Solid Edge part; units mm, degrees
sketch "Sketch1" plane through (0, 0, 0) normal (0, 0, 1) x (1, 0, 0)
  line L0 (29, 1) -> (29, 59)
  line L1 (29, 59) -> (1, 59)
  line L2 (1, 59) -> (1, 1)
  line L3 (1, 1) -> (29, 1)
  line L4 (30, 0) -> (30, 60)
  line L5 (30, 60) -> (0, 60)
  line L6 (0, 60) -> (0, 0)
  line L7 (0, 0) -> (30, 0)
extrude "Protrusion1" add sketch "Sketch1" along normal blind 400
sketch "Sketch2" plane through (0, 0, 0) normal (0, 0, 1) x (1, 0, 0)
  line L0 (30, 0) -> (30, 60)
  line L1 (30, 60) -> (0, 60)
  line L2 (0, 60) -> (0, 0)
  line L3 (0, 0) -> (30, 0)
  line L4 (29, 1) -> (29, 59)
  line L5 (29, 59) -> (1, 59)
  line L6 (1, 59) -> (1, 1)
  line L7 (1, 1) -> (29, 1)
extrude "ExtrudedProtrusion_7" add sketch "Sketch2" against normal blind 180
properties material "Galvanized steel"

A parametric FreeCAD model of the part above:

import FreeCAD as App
import Part
import Sketcher
from FreeCAD import Vector
Q = App.Units.Quantity

doc = App.newDocument("Part")
body = doc.addObject("PartDesign::Body", "Body")

# Sketch on XY plane
sketch1 = body.newObject("Sketcher::SketchObject", "Sketch")
sketch1.AttachmentSupport = (doc.getObject("XY_Plane"), [""])
sketch1.MapMode = "FlatFace"
sketch1.addGeometry([
    Part.LineSegment(Vector(0, 0, 0), Vector(30, 0, 0)),  # 0
    Part.LineSegment(Vector(30, 0, 0), Vector(30, 60, 0)),  # 1
    Part.LineSegment(Vector(30, 60, 0), Vector(0, 60, 0)),  # 2
    Part.LineSegment(Vector(0, 60, 0), Vector(0, 0, 0)),  # 3
    Part.LineSegment(Vector(29, 59, 0), Vector(29, 1, 0)),  # 4
    Part.LineSegment(Vector(29, 1, 0), Vector(1, 1, 0)),  # 5
    Part.LineSegment(Vector(1, 1, 0), Vector(1, 59, 0)),  # 6
    Part.LineSegment(Vector(1, 59, 0), Vector(29, 59, 0)),  # 7
], False)
sketch1.addConstraint([
    Sketcher.Constraint("Coincident", 0, 2, 1, 1),
    Sketcher.Constraint("Coincident", 1, 2, 2, 1),
    Sketcher.Constraint("Coincident", 2, 2, 3, 1),
    Sketcher.Constraint("Coincident", 3, 2, 0, 1),
    Sketcher.Constraint("Coincident", 4, 2, 5, 1),
    Sketcher.Constraint("Coincident", 5, 2, 6, 1),
    Sketcher.Constraint("Coincident", 6, 2, 7, 1),
    Sketcher.Constraint("Coincident", 7, 2, 4, 1),
    Sketcher.Constraint("Horizontal", 0),
    Sketcher.Constraint("Vertical", 1),
    Sketcher.Constraint("Horizontal", 2),
    Sketcher.Constraint("Vertical", 3),
    Sketcher.Constraint("Vertical", 4),
    Sketcher.Constraint("Horizontal", 5),
    Sketcher.Constraint("Vertical", 6),
    Sketcher.Constraint("Horizontal", 7),
    Sketcher.Constraint("Coincident", 3, 2, -1, 1),
    Sketcher.Constraint("DistanceX", 0, 1, 0, 2, Q("30 mm")),
    Sketcher.Constraint("DistanceX", 5, 2, 5, 1, Q("28 mm")),
    Sketcher.Constraint("DistanceY", 1, 1, 1, 2, Q("60 mm")),
    Sketcher.Constraint("DistanceY", 4, 2, 4, 1, Q("58 mm")),
    Sketcher.Constraint("DistanceX", -1, 1, 4, 2, Q("29 mm")),
    Sketcher.Constraint("DistanceY", -1, 1, 4, 2, Q("1 mm")),
])
pad1 = body.newObject("PartDesign::Pad", "Pad")
pad1.Profile = sketch1
pad1.Length = 400

# Sketch on XY plane
sketch2 = body.newObject("Sketcher::SketchObject", "Sketch001")
sketch2.AttachmentSupport = (doc.getObject("XY_Plane"), [""])
sketch2.MapMode = "FlatFace"
sketch2.addGeometry([
    Part.LineSegment(Vector(0, 0, 0), Vector(30, 0, 0)),  # 0
    Part.LineSegment(Vector(30, 0, 0), Vector(30, 60, 0)),  # 1
    Part.LineSegment(Vector(30, 60, 0), Vector(0, 60, 0)),  # 2
    Part.LineSegment(Vector(0, 60, 0), Vector(0, 0, 0)),  # 3
    Part.LineSegment(Vector(29, 59, 0), Vector(29, 1, 0)),  # 4
    Part.LineSegment(Vector(29, 1, 0), Vector(1, 1, 0)),  # 5
    Part.LineSegment(Vector(1, 1, 0), Vector(1, 59, 0)),  # 6
    Part.LineSegment(Vector(1, 59, 0), Vector(29, 59, 0)),  # 7
], False)
sketch2.addConstraint([
    Sketcher.Constraint("Coincident", 0, 2, 1, 1),
    Sketcher.Constraint("Coincident", 1, 2, 2, 1),
    Sketcher.Constraint("Coincident", 2, 2, 3, 1),
    Sketcher.Constraint("Coincident", 3, 2, 0, 1),
    Sketcher.Constraint("Coincident", 4, 2, 5, 1),
    Sketcher.Constraint("Coincident", 5, 2, 6, 1),
    Sketcher.Constraint("Coincident", 6, 2, 7, 1),
    Sketcher.Constraint("Coincident", 7, 2, 4, 1),
    Sketcher.Constraint("Horizontal", 0),
    Sketcher.Constraint("Vertical", 1),
    Sketcher.Constraint("Horizontal", 2),
    Sketcher.Constraint("Vertical", 3),
    Sketcher.Constraint("Vertical", 4),
    Sketcher.Constraint("Horizontal", 5),
    Sketcher.Constraint("Vertical", 6),
    Sketcher.Constraint("Horizontal", 7),
    Sketcher.Constraint("Coincident", 3, 2, -1, 1),
    Sketcher.Constraint("DistanceX", 0, 1, 0, 2, Q("30 mm")),
    Sketcher.Constraint("DistanceX", 5, 2, 5, 1, Q("28 mm")),
    Sketcher.Constraint("DistanceY", 1, 1, 1, 2, Q("60 mm")),
    Sketcher.Constraint("DistanceY", 4, 2, 4, 1, Q("58 mm")),
    Sketcher.Constraint("DistanceX", -1, 1, 4, 2, Q("29 mm")),
    Sketcher.Constraint("DistanceY", -1, 1, 4, 2, Q("1 mm")),
])
pad2 = body.newObject("PartDesign::Pad", "Pad001")
pad2.Profile = sketch2
pad2.Length = 180
pad2.Reversed = True

doc.recompute()
